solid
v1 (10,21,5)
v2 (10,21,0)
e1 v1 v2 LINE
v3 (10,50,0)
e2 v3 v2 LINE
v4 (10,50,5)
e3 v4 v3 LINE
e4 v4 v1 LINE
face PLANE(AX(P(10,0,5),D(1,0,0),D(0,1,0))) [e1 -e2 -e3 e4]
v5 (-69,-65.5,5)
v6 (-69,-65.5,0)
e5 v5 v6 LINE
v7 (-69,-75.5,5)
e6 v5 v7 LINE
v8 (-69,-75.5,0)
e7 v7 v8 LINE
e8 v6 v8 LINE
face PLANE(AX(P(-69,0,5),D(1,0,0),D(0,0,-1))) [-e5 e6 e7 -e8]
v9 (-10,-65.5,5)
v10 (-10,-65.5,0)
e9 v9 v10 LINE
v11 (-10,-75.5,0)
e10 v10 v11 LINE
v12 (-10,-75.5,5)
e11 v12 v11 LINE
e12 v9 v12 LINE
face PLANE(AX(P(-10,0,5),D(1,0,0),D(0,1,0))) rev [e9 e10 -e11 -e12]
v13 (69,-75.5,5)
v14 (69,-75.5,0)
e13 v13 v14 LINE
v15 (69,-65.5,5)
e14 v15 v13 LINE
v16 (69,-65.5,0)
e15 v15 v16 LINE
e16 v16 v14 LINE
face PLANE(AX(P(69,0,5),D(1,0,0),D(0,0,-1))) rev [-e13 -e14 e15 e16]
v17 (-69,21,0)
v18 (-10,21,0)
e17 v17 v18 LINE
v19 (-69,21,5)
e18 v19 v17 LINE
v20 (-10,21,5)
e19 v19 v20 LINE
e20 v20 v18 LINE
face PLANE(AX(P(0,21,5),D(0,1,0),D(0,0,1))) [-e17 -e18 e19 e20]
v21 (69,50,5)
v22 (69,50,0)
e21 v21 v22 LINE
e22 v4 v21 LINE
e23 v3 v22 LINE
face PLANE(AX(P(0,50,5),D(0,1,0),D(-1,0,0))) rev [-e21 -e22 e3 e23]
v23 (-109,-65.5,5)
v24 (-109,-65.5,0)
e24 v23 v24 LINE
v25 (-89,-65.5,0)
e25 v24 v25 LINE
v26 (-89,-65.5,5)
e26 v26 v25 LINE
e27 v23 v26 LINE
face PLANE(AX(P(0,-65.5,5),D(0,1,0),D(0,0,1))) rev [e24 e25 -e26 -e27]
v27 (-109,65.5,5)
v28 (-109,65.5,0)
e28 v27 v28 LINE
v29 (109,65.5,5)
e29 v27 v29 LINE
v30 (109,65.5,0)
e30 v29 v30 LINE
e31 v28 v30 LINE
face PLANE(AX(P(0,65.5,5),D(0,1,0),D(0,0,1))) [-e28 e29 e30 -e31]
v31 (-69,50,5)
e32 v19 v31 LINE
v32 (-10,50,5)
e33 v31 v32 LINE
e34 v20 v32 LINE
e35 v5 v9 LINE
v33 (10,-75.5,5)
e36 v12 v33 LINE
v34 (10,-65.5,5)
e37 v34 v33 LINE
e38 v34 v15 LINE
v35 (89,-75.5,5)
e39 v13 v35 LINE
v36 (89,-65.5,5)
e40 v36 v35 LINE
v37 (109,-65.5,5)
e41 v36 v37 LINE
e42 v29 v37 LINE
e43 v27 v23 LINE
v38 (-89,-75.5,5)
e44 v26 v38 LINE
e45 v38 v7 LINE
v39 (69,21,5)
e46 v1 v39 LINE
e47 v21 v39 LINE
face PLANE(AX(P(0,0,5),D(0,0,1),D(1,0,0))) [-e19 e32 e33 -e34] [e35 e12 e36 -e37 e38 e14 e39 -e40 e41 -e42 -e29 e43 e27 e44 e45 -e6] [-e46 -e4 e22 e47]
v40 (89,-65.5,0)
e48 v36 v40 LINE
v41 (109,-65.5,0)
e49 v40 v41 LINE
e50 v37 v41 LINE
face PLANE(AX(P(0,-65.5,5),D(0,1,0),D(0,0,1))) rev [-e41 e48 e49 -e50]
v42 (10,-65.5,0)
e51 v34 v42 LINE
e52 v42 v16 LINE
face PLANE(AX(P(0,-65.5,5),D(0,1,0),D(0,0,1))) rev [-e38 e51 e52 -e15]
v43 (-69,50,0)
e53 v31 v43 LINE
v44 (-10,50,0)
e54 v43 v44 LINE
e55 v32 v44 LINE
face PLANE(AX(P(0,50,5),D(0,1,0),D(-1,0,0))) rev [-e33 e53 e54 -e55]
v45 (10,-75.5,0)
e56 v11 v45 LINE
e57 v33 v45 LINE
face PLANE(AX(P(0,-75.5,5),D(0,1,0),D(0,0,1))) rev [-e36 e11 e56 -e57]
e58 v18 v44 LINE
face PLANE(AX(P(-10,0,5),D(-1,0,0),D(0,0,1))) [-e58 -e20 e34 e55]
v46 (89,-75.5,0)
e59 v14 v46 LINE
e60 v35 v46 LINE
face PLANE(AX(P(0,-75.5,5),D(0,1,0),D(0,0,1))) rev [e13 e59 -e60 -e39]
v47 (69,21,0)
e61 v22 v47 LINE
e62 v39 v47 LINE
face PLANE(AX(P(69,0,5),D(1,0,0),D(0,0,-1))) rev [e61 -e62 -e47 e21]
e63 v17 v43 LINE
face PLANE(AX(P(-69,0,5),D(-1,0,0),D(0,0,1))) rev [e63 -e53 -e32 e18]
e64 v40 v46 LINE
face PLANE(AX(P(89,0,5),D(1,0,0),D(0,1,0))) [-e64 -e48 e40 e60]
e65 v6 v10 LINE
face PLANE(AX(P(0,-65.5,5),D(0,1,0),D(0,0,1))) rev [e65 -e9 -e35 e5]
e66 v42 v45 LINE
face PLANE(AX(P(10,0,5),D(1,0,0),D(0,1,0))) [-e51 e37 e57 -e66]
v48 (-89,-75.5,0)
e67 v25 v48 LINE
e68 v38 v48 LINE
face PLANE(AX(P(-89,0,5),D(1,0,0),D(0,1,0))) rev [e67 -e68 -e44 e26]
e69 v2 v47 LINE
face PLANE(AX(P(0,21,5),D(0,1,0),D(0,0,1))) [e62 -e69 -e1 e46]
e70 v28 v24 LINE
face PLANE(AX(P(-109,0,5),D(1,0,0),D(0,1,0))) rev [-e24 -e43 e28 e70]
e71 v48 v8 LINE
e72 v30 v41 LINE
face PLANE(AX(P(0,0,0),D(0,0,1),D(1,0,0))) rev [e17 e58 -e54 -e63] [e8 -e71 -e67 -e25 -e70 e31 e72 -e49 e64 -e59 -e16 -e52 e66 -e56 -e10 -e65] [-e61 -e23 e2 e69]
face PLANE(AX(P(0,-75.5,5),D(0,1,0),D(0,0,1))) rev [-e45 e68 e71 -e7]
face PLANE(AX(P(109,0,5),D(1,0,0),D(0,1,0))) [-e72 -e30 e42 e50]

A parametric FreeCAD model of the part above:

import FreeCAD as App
import Part
import Sketcher

V = App.Vector
Q = App.Units.Quantity

doc = App.newDocument("Part")
body = doc.addObject("PartDesign::Body", "Body")

# Sketch on XY plane
sketch1 = body.newObject("Sketcher::SketchObject", "Sketch")
sketch1.AttachmentSupport = (doc.getObject("XY_Plane"), [""])
sketch1.MapMode = "FlatFace"
sketch1.addGeometry(Part.LineSegment(V(-109, 66, 0), V(-109, -66, 0)), False)
sketch1.addGeometry(Part.LineSegment(V(-109, -66, 0), V(-89, -66, 0)), False)
sketch1.addGeometry(Part.LineSegment(V(-89, -66, 0), V(-89, -76, 0)), False)
sketch1.addGeometry(Part.LineSegment(V(-89, -76, 0), V(-69, -76, 0)), False)
sketch1.addGeometry(Part.LineSegment(V(-69, -76, 0), V(-69, -66, 0)), False)
sketch1.addGeometry(Part.LineSegment(V(-69, -66, 0), V(-10, -66, 0)), False)
sketch1.addGeometry(Part.LineSegment(V(-10, -66, 0), V(-10, -76, 0)), False)
sketch1.addGeometry(Part.LineSegment(V(-10, -76, 0), V(10, -76, 0)), False)
sketch1.addGeometry(Part.LineSegment(V(10, -76, 0), V(10, -66, 0)), False)
sketch1.addGeometry(Part.LineSegment(V(10, -66, 0), V(69, -66, 0)), False)
sketch1.addGeometry(Part.LineSegment(V(69, -66, 0), V(69, -76, 0)), False)
sketch1.addGeometry(Part.LineSegment(V(69, -76, 0), V(89, -76, 0)), False)
sketch1.addGeometry(Part.LineSegment(V(89, -76, 0), V(89, -66, 0)), False)
sketch1.addGeometry(Part.LineSegment(V(89, -66, 0), V(109, -66, 0)), False)
sketch1.addGeometry(Part.LineSegment(V(109, -66, 0), V(109, 66, 0)), False)
sketch1.addGeometry(Part.LineSegment(V(109, 66, 0), V(-109, 66, 0)), False)
sketch1.addGeometry(Part.LineSegment(V(-10, 21, 0), V(-69, 21, 0)), False)
sketch1.addGeometry(Part.LineSegment(V(-69, 21, 0), V(-69, 50, 0)), False)
sketch1.addGeometry(Part.LineSegment(V(-69, 50, 0), V(-10, 50, 0)), False)
sketch1.addGeometry(Part.LineSegment(V(-10, 50, 0), V(-10, 21, 0)), False)
sketch1.addGeometry(Part.LineSegment(V(69, 21, 0), V(10, 21, 0)), False)
sketch1.addGeometry(Part.LineSegment(V(10, 21, 0), V(10, 50, 0)), False)
sketch1.addGeometry(Part.LineSegment(V(10, 50, 0), V(69, 50, 0)), False)
sketch1.addGeometry(Part.LineSegment(V(69, 50, 0), V(69, 21, 0)), False)
sketch1.addConstraint(Sketcher.Constraint("Coincident", 0, 2, 1, 1))
sketch1.addConstraint(Sketcher.Constraint("Coincident", 1, 2, 2, 1))
sketch1.addConstraint(Sketcher.Constraint("Coincident", 2, 2, 3, 1))
sketch1.addConstraint(Sketcher.Constraint("Coincident", 3, 2, 4, 1))
sketch1.addConstraint(Sketcher.Constraint("Coincident", 4, 2, 5, 1))
sketch1.addConstraint(Sketcher.Constraint("Coincident", 5, 2, 6, 1))
sketch1.addConstraint(Sketcher.Constraint("Coincident", 6, 2, 7, 1))
sketch1.addConstraint(Sketcher.Constraint("Coincident", 7, 2, 8, 1))
sketch1.addConstraint(Sketcher.Constraint("Coincident", 8, 2, 9, 1))
sketch1.addConstraint(Sketcher.Constraint("Coincident", 9, 2, 10, 1))
sketch1.addConstraint(Sketcher.Constraint("Coincident", 10, 2, 11, 1))
sketch1.addConstraint(Sketcher.Constraint("Coincident", 11, 2, 12, 1))
sketch1.addConstraint(Sketcher.Constraint("Coincident", 12, 2, 13, 1))
sketch1.addConstraint(Sketcher.Constraint("Coincident", 13, 2, 14, 1))
sketch1.addConstraint(Sketcher.Constraint("Coincident", 14, 2, 15, 1))
sketch1.addConstraint(Sketcher.Constraint("Coincident", 15, 2, 0, 1))
sketch1.addConstraint(Sketcher.Constraint("Coincident", 16, 2, 17, 1))
sketch1.addConstraint(Sketcher.Constraint("Coincident", 17, 2, 18, 1))
sketch1.addConstraint(Sketcher.Constraint("Coincident", 18, 2, 19, 1))
sketch1.addConstraint(Sketcher.Constraint("Coincident", 19, 2, 16, 1))
sketch1.addConstraint(Sketcher.Constraint("Coincident", 20, 2, 21, 1))
sketch1.addConstraint(Sketcher.Constraint("Coincident", 21, 2, 22, 1))
sketch1.addConstraint(Sketcher.Constraint("Coincident", 22, 2, 23, 1))
sketch1.addConstraint(Sketcher.Constraint("Coincident", 23, 2, 20, 1))
sketch1.addConstraint(Sketcher.Constraint("Vertical", 0))
sketch1.addConstraint(Sketcher.Constraint("Horizontal", 1))
sketch1.addConstraint(Sketcher.Constraint("Vertical", 2))
sketch1.addConstraint(Sketcher.Constraint("Horizontal", 3))
sketch1.addConstraint(Sketcher.Constraint("Vertical", 4))
sketch1.addConstraint(Sketcher.Constraint("Horizontal", 5))
sketch1.addConstraint(Sketcher.Constraint("Vertical", 6))
sketch1.addConstraint(Sketcher.Constraint("Horizontal", 7))
sketch1.addConstraint(Sketcher.Constraint("Vertical", 8))
sketch1.addConstraint(Sketcher.Constraint("Horizontal", 9))
sketch1.addConstraint(Sketcher.Constraint("Vertical", 10))
sketch1.addConstraint(Sketcher.Constraint("Horizontal", 11))
sketch1.addConstraint(Sketcher.Constraint("Vertical", 12))
sketch1.addConstraint(Sketcher.Constraint("Horizontal", 13))
sketch1.addConstraint(Sketcher.Constraint("Vertical", 14))
sketch1.addConstraint(Sketcher.Constraint("Horizontal", 15))
sketch1.addConstraint(Sketcher.Constraint("Horizontal", 16))
sketch1.addConstraint(Sketcher.Constraint("Vertical", 17))
sketch1.addConstraint(Sketcher.Constraint("Horizontal", 18))
sketch1.addConstraint(Sketcher.Constraint("Vertical", 19))
sketch1.addConstraint(Sketcher.Constraint("Horizontal", 20))
sketch1.addConstraint(Sketcher.Constraint("Vertical", 21))
sketch1.addConstraint(Sketcher.Constraint("Horizontal", 22))
sketch1.addConstraint(Sketcher.Constraint("Vertical", 23))
sketch1.addConstraint(Sketcher.Constraint("Symmetric", 0, 2, 14, 2, -1, 1))
sketch1.addConstraint(Sketcher.Constraint("Symmetric", 5, 2, 8, 2, -2))
sketch1.addConstraint(Sketcher.Constraint("Symmetric", 3, 2, 10, 2, -2))
sketch1.addConstraint(Sketcher.Constraint("Symmetric", 1, 2, 12, 2, -2))
sketch1.addConstraint(Sketcher.Constraint("Symmetric", 19, 2, 20, 2, -2))
sketch1.addConstraint(Sketcher.Constraint("Symmetric", 17, 2, 22, 2, -2))
sketch1.addConstraint(Sketcher.Constraint("Horizontal", 1, 2, 4, 2))
sketch1.addConstraint(Sketcher.Constraint("Horizontal", 3, 2, 6, 2))
sketch1.addConstraint(Sketcher.Constraint("Vertical", 4, 2, 16, 2))
sketch1.addConstraint(Sketcher.Constraint("Vertical", 6, 2, 18, 2))
sketch1.addConstraint(Sketcher.Constraint("Equal", 1, 3))
sketch1.addConstraint(Sketcher.Constraint("Equal", 3, 7))
sketch1.addConstraint(Sketcher.Constraint("DistanceX", 1, 1, 1, 2, Q("20 mm")))
sketch1.addConstraint(Sketcher.Constraint("DistanceX", 5, 1, 5, 2, Q("59 mm")))
sketch1.addConstraint(Sketcher.Constraint("DistanceY", 0, 2, 0, 1, Q("131 mm")))
sketch1.addConstraint(Sketcher.Constraint("DistanceY", 2, 2, 2, 1, Q("10 mm")))
sketch1.addConstraint(Sketcher.Constraint("DistanceY", 17, 1, 17, 2, Q("29 mm")))
sketch1.addConstraint(Sketcher.Constraint("DistanceY", -1, 1, 16, 2, Q("21 mm")))
pad1 = body.newObject("PartDesign::Pad", "Pad")
pad1.Profile = sketch1
pad1.Length = 5

doc.recompute()
